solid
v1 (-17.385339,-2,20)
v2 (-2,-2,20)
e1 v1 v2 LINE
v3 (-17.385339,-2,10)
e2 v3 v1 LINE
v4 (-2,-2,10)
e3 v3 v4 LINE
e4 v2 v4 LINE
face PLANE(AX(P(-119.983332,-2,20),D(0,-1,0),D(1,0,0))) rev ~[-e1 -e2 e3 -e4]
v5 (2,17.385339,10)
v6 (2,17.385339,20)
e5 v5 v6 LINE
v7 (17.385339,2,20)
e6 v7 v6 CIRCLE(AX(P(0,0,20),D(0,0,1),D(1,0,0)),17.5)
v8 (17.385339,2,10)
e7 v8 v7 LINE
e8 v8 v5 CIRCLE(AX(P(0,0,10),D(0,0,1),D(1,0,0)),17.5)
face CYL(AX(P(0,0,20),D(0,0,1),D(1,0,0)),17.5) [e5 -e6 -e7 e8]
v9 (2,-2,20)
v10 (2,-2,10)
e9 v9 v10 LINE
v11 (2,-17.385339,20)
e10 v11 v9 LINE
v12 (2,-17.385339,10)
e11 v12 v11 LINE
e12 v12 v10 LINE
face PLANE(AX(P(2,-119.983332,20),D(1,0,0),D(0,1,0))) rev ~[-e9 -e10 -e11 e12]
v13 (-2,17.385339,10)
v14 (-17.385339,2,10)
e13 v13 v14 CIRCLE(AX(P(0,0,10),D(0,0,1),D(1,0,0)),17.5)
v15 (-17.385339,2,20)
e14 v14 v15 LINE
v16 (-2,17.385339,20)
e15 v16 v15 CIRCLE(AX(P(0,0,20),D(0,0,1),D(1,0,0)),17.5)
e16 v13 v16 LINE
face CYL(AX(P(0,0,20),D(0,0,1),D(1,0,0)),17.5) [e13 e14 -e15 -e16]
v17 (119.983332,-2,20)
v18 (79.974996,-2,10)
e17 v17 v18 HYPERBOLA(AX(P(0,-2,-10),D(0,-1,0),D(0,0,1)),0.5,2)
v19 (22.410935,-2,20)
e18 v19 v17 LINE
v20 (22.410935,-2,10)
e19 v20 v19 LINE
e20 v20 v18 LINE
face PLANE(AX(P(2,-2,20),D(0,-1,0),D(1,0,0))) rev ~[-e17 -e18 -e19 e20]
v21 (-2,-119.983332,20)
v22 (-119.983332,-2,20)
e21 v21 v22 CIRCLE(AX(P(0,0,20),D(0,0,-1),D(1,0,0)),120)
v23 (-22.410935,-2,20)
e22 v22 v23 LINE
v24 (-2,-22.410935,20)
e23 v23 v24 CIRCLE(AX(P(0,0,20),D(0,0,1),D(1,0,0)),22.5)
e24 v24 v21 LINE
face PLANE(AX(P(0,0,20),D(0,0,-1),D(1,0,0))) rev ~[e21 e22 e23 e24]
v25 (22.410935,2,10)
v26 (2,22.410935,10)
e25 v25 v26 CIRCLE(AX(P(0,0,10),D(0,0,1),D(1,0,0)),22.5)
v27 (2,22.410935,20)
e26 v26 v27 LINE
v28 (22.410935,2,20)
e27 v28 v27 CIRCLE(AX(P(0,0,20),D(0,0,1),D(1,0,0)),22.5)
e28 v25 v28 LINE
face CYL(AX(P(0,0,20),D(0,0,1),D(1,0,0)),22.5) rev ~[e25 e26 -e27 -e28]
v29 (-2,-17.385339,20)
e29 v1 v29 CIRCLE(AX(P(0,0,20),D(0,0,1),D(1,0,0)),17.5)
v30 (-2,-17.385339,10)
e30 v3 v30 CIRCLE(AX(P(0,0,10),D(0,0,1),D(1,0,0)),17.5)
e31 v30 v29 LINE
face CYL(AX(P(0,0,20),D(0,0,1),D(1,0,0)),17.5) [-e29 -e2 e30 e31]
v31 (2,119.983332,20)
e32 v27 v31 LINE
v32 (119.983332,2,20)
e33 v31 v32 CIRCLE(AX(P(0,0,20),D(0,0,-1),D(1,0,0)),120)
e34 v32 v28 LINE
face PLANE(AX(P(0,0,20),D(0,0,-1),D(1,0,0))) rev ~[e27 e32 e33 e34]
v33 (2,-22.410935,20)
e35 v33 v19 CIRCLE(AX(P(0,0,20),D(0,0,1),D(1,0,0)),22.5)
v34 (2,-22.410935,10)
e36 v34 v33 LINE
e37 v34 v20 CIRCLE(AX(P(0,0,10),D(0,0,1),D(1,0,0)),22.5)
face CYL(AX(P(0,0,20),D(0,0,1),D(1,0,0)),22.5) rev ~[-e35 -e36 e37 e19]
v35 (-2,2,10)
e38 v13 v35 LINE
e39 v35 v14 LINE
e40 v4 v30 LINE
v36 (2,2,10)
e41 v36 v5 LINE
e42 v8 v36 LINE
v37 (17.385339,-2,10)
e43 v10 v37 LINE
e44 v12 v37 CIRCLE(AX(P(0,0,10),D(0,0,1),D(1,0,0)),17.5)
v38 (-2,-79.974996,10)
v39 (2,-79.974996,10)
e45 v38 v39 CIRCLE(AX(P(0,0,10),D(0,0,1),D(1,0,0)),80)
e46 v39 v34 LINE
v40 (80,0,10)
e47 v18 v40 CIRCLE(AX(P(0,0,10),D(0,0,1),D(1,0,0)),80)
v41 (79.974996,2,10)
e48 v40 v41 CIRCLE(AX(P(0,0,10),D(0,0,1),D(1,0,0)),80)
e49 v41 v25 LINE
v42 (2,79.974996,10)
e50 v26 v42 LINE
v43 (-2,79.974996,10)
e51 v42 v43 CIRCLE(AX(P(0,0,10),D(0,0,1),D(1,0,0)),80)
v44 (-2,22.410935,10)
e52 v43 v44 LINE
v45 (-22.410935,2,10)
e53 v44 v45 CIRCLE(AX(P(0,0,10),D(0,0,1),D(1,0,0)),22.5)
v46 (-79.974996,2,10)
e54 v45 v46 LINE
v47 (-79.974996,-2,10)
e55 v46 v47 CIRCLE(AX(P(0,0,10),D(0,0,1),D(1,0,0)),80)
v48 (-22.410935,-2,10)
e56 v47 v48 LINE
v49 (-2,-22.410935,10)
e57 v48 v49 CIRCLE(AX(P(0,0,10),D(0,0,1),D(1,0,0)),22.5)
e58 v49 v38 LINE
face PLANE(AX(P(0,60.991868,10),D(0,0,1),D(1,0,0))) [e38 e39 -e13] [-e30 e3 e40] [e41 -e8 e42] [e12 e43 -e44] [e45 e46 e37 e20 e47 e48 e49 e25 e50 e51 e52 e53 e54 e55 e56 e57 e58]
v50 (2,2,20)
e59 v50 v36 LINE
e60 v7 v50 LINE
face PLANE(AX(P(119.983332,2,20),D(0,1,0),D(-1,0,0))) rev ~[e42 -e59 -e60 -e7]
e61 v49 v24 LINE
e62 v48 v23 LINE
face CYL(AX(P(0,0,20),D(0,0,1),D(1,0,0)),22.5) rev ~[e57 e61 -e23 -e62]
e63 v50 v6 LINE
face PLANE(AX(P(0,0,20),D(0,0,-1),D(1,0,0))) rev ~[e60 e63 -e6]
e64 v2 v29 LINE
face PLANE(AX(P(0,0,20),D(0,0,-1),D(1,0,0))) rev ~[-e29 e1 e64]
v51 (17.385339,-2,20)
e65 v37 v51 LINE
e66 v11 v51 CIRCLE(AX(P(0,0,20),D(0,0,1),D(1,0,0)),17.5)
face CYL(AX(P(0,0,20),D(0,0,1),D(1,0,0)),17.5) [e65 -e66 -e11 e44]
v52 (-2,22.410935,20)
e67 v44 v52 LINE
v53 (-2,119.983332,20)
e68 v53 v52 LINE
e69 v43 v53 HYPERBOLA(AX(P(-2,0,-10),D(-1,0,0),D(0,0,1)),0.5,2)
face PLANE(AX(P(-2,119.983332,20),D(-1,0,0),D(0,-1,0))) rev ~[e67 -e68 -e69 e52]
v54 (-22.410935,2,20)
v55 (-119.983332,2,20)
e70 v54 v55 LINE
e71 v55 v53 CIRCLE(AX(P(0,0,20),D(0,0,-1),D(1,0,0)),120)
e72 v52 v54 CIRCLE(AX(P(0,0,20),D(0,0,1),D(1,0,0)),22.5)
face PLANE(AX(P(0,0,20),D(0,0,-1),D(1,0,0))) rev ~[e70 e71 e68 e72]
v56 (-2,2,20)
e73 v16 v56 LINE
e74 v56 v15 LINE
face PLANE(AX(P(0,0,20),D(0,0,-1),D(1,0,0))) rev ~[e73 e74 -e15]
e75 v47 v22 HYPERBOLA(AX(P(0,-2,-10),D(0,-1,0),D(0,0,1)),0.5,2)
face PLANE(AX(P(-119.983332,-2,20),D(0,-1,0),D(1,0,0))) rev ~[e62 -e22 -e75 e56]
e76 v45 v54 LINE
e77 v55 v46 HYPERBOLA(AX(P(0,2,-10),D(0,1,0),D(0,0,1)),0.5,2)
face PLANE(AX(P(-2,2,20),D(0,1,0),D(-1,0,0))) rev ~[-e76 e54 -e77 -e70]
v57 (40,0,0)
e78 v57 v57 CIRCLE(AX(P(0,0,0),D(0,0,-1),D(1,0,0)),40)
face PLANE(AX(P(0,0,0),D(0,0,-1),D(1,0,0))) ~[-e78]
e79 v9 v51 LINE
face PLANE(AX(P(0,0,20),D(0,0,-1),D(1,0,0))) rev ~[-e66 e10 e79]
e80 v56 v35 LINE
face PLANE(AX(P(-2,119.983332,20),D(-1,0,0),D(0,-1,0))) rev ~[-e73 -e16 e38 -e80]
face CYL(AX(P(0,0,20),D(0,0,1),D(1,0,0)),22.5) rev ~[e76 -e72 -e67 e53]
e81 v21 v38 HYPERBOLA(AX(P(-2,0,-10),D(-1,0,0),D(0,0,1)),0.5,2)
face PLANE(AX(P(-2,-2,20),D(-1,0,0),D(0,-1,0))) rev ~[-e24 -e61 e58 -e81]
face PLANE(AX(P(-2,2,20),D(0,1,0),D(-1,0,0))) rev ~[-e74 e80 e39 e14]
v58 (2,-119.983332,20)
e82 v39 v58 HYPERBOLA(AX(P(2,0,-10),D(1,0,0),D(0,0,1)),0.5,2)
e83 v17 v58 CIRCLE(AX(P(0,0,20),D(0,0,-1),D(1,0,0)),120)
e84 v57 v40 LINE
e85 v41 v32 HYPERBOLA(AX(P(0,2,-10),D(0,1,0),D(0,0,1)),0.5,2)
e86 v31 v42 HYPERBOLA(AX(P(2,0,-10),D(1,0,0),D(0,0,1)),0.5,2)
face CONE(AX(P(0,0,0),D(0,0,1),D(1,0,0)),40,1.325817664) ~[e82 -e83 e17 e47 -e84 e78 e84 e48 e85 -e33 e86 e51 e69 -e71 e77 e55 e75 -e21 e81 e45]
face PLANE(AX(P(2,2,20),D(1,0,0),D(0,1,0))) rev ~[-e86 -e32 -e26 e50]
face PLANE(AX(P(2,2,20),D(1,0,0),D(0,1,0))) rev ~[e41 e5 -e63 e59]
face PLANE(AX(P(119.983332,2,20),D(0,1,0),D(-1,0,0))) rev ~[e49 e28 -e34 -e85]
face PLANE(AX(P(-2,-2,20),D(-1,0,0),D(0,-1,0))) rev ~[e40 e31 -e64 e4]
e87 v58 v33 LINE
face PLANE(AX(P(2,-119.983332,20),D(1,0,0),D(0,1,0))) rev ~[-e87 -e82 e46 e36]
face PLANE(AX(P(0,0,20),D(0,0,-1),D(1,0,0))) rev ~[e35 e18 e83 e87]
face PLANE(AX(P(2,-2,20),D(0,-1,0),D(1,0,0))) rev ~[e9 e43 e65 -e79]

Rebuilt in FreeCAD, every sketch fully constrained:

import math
import FreeCAD as App
import Part
import Sketcher

V = App.Vector

doc = App.newDocument("Part")
params = doc.addObject("Spreadsheet::Sheet", "Params")
for row, (alias, value) in enumerate([
    ("sketch1_width", "40 mm"),
    ("sketch1_width2", "120 mm"),
    ("sketch1_height", "20 mm"),
    ("revolution_angle", "360 deg"),
    ("sketch2_diameter", "45 mm"),
    ("sketch2_diameter2", "35 mm"),
    ("pocket1_length", "10 mm"),
    ("sketch3_radius", "120 mm"),
    ("pocket2_length", "10 mm"),
], start=1):
    params.set(f"A{row}", alias)
    params.set(f"B{row}", "=" + value)
    params.setAlias(f"B{row}", alias)

body = doc.addObject("PartDesign::Body", "Body")

# Sketch on XZ plane
sketch1 = body.newObject("Sketcher::SketchObject", "Sketch")
sketch1.AttachmentSupport = (doc.getObject("XZ_Plane"), [""])
sketch1.MapMode = "FlatFace"
sketch1.addGeometry([
    Part.LineSegment(V(0, 20, 0), V(0, 0, 0)),
    Part.LineSegment(V(0, 0, 0), V(40, 0, 0)),
    Part.LineSegment(V(40, 0, 0), V(120, 20, 0)),
    Part.LineSegment(V(120, 20, 0), V(0, 20, 0)),
], False)
sketch1.addConstraint([
    Sketcher.Constraint("Coincident", 0, 2, 1, 1),
    Sketcher.Constraint("Coincident", 1, 2, 2, 1),
    Sketcher.Constraint("Coincident", 2, 2, 3, 1),
    Sketcher.Constraint("Coincident", 3, 2, 0, 1),
    Sketcher.Constraint("Vertical", 0),
    Sketcher.Constraint("Horizontal", 1),
    Sketcher.Constraint("Horizontal", 3),
    Sketcher.Constraint("Coincident", 0, 2, -1, 1),
    Sketcher.Constraint("DistanceX", 1, 1, 1, 2, 40.0),
    Sketcher.Constraint("DistanceX", 3, 2, 3, 1, 120.0),
    Sketcher.Constraint("DistanceY", 0, 2, 0, 1, 20.0),
])
sketch1.setExpression("Constraints[8]", "Params.sketch1_width")
sketch1.setExpression("Constraints[9]", "Params.sketch1_width2")
sketch1.setExpression("Constraints[10]", "Params.sketch1_height")
revolution = body.newObject("PartDesign::Revolution", "Revolution")
revolution.Profile = sketch1
revolution.ReferenceAxis = (sketch1, ["V_Axis"])
revolution.setExpression("Angle", "Params.revolution_angle")

# Sketch on XY plane
sketch2 = body.newObject("Sketcher::SketchObject", "Sketch001")
sketch2.AttachmentSupport = (doc.getObject("XY_Plane"), [""])
sketch2.MapMode = "FlatFace"
sketch2.AttachmentOffset = App.Placement(V(0, 0, 20), App.Rotation())
sketch2.addGeometry([
    Part.Circle(V(0, 0, 0), V(0, 0, 1), 22),
    Part.Circle(V(0, 0, 0), V(0, 0, 1), 18),
], False)
sketch2.addConstraint([
    Sketcher.Constraint("Coincident", 0, 3, -1, 1),
    Sketcher.Constraint("Coincident", 1, 3, -1, 1),
    Sketcher.Constraint("Diameter", 0, 45.0),
    Sketcher.Constraint("Diameter", 1, 35.0),
])
sketch2.setExpression("Constraints[2]", "Params.sketch2_diameter")
sketch2.setExpression("Constraints[3]", "Params.sketch2_diameter2")
pocket1 = body.newObject("PartDesign::Pocket", "Pocket")
pocket1.Profile = sketch2
pocket1.setExpression("Length", "Params.pocket1_length")

# Sketch on XY plane
sketch3 = body.newObject("Sketcher::SketchObject", "Sketch002")
sketch3.AttachmentSupport = (doc.getObject("XY_Plane"), [""])
sketch3.MapMode = "FlatFace"
sketch3.AttachmentOffset = App.Placement(V(0, 0, 20), App.Rotation())
sketch3.addGeometry([
    Part.LineSegment(V(2, 2, 0), V(2, 120, 0)),  # 0
    Part.ArcOfCircle(Part.Circle(V(0, 0, 0), V(0, 0, 1), 120), math.radians(89.05), math.radians(90.95)),  # 1
    Part.LineSegment(V(-2, 120, 0), V(-2, 2, 0)),  # 2
    Part.LineSegment(V(-2, 2, 0), V(-120, 2, 0)),  # 3
    Part.ArcOfCircle(Part.Circle(V(0, 0, 0), V(0, 0, 1), 120), math.radians(179.05), math.radians(180.95)),  # 4
    Part.LineSegment(V(-120, -2, 0), V(-2, -2, 0)),  # 5
    Part.LineSegment(V(-2, -2, 0), V(-2, -120, 0)),  # 6
    Part.ArcOfCircle(Part.Circle(V(0, 0, 0), V(0, 0, 1), 120), math.radians(-90.95), math.radians(-89.05)),  # 7
    Part.LineSegment(V(2, -120, 0), V(2, -2, 0)),  # 8
    Part.LineSegment(V(2, -2, 0), V(120, -2, 0)),  # 9
    Part.ArcOfCircle(Part.Circle(V(0, 0, 0), V(0, 0, 1), 120), math.radians(-0.95), math.radians(0.95)),  # 10
    Part.LineSegment(V(120, 2, 0), V(2, 2, 0)),  # 11
], False)
sketch3.addConstraint([
    Sketcher.Constraint("Coincident", 0, 2, 1, 1),
    Sketcher.Constraint("Coincident", 1, 2, 2, 1),
    Sketcher.Constraint("Coincident", 2, 2, 3, 1),
    Sketcher.Constraint("Coincident", 3, 2, 4, 1),
    Sketcher.Constraint("Coincident", 4, 2, 5, 1),
    Sketcher.Constraint("Coincident", 5, 2, 6, 1),
    Sketcher.Constraint("Coincident", 6, 2, 7, 1),
    Sketcher.Constraint("Coincident", 7, 2, 8, 1),
    Sketcher.Constraint("Coincident", 8, 2, 9, 1),
    Sketcher.Constraint("Coincident", 9, 2, 10, 1),
    Sketcher.Constraint("Coincident", 10, 2, 11, 1),
    Sketcher.Constraint("Coincident", 11, 2, 0, 1),
    Sketcher.Constraint("Vertical", 0),
    Sketcher.Constraint("Vertical", 2),
    Sketcher.Constraint("Horizontal", 3),
    Sketcher.Constraint("Horizontal", 5),
    Sketcher.Constraint("Vertical", 6),
    Sketcher.Constraint("Vertical", 8),
    Sketcher.Constraint("Horizontal", 9),
    Sketcher.Constraint("Horizontal", 11),
    Sketcher.Constraint("Coincident", 1, 3, -1, 1),
    Sketcher.Constraint("Coincident", 4, 3, -1, 1),
    Sketcher.Constraint("Coincident", 7, 3, -1, 1),
    Sketcher.Constraint("Coincident", 10, 3, -1, 1),
    Sketcher.Constraint("Equal", 1, 4),
    Sketcher.Constraint("Equal", 4, 7),
    Sketcher.Constraint("Equal", 7, 10),
    Sketcher.Constraint("Symmetric", 2, 2, 8, 2, -1, 1),
    Sketcher.Constraint("Symmetric", 5, 2, 11, 2, -1, 1),
    Sketcher.Constraint("Symmetric", 5, 2, 8, 2, -2),
    Sketcher.Constraint("Equal", 11, 0),
    Sketcher.Constraint("Radius", 1, 120.0),
    Sketcher.Constraint("DistanceX", -1, 1, 0, 2, 2.0),
])
sketch3.setExpression("Constraints[31]", "Params.sketch3_radius")
pocket2 = body.newObject("PartDesign::Pocket", "Pocket001")
pocket2.Profile = sketch3
pocket2.setExpression("Length", "Params.pocket2_length")

doc.recompute()
